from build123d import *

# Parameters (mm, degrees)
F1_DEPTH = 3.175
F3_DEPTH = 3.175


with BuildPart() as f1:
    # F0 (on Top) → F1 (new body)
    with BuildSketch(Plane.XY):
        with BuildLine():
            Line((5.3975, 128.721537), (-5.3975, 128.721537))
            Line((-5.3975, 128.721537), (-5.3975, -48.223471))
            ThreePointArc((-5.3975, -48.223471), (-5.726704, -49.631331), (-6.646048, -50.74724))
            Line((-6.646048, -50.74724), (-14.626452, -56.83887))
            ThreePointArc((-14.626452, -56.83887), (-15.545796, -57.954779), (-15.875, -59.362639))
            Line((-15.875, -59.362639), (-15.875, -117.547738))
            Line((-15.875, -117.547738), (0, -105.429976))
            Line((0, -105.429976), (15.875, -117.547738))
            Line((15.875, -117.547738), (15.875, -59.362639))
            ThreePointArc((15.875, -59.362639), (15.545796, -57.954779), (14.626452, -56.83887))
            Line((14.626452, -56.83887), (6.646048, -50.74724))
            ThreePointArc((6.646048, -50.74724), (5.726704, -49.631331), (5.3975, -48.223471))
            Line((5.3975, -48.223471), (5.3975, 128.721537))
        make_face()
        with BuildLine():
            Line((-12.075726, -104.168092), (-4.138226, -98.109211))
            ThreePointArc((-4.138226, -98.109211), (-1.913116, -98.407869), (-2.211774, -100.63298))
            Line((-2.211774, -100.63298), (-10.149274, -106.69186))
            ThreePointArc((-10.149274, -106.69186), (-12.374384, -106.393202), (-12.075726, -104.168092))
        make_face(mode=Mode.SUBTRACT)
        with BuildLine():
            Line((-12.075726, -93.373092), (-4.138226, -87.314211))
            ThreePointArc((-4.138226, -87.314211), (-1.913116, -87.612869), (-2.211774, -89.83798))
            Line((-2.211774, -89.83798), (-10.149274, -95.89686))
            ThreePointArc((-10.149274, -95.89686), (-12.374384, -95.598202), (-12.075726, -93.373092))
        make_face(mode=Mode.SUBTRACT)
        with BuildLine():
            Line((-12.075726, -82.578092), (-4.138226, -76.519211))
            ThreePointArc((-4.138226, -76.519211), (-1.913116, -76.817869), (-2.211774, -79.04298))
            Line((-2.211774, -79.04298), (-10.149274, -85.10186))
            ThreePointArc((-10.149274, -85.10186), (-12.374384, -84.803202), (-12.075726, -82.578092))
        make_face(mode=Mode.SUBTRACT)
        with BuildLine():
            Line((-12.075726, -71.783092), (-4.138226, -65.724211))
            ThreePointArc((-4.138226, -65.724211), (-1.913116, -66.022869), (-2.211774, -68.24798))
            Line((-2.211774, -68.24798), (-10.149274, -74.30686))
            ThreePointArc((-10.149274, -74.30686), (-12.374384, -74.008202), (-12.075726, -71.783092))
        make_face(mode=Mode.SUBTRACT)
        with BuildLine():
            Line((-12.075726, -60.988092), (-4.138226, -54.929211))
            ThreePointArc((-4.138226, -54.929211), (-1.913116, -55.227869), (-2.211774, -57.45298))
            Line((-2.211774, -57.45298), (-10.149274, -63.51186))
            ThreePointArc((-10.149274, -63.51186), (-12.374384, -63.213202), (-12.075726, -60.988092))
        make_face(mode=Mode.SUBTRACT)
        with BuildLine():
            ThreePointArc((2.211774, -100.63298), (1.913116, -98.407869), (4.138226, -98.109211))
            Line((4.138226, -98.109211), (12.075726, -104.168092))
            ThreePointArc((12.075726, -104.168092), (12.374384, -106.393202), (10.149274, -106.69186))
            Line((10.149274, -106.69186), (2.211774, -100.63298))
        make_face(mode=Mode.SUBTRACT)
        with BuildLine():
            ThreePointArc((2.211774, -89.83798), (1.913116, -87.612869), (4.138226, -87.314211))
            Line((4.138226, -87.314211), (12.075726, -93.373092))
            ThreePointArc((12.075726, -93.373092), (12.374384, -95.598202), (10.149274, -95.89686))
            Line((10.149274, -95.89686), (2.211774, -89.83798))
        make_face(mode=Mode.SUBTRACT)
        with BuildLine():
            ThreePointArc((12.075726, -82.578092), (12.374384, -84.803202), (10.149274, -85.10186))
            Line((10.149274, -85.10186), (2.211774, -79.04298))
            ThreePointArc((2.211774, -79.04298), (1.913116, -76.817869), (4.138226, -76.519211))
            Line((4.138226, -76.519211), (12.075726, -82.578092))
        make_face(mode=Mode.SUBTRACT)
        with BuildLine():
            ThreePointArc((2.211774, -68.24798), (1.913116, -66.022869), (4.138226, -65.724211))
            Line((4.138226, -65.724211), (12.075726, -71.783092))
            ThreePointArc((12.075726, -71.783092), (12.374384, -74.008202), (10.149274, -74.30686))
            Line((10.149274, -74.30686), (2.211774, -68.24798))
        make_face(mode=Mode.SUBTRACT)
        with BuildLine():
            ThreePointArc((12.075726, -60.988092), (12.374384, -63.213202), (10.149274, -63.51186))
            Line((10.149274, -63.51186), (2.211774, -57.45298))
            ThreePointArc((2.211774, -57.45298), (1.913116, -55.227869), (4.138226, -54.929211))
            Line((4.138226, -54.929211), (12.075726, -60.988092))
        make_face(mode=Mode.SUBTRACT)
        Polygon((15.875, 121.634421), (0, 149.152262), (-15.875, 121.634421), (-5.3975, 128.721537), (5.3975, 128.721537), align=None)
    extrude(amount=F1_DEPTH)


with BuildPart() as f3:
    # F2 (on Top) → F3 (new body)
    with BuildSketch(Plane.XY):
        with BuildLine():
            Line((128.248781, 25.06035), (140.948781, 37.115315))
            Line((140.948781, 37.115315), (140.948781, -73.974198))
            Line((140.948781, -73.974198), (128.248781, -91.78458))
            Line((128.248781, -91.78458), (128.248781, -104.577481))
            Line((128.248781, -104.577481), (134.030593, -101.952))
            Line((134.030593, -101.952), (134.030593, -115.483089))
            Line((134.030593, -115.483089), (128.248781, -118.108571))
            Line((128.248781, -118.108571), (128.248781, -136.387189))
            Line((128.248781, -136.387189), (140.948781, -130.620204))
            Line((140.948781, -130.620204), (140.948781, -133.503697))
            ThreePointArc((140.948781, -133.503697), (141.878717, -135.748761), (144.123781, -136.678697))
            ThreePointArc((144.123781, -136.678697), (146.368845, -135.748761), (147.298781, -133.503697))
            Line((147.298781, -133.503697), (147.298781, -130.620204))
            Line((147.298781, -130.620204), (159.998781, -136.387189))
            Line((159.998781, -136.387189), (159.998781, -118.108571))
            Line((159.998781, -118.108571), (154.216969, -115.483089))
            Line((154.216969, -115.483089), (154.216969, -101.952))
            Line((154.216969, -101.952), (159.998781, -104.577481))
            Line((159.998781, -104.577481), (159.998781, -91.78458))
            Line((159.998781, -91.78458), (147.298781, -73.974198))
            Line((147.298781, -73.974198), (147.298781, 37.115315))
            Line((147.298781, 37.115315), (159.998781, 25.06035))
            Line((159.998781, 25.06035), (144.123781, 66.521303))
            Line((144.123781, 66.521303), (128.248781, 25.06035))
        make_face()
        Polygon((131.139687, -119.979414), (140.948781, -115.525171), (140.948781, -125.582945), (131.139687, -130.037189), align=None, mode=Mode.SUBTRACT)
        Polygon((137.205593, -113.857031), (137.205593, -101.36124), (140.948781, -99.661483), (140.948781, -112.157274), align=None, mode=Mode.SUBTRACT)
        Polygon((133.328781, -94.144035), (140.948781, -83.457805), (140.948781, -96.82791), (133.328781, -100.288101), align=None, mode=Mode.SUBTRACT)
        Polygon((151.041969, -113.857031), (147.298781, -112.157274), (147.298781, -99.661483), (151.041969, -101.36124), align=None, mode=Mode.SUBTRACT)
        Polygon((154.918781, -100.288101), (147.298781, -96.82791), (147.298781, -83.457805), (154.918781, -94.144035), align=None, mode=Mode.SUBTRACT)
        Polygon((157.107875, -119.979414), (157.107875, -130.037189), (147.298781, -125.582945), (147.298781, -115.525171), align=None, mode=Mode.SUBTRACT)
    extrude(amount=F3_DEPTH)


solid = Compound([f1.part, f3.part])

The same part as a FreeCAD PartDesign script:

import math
import FreeCAD as App
import Part
import Sketcher
from FreeCAD import Vector
Q = App.Units.Quantity

doc = App.newDocument("Part")
body = doc.addObject("PartDesign::Body", "Body")

sketch1 = doc.addObject("Sketcher::SketchObject", "Sketch")
body.addObject(sketch1)
sketch1.AttachmentSupport = (doc.XY_Plane, [""])
sketch1.MapMode = "FlatFace"
sketch1.addGeometry(Part.LineSegment(Vector(14.6, -56.8, 0), Vector(6.6, -50.7, 0)), False)
sketch1.addGeometry(Part.ArcOfCircle(Part.Circle(Vector(8.6, -48.2, 0), Vector(0, 0, 1), 3.2), math.radians(-180), math.radians(-127)), False)
sketch1.addGeometry(Part.LineSegment(Vector(5.4, -48.2, 0), Vector(5.4, 128.7, 0)), False)
sketch1.addGeometry(Part.LineSegment(Vector(5.4, 128.7, 0), Vector(15.9, 121.6, 0)), False)
sketch1.addGeometry(Part.LineSegment(Vector(15.9, 121.6, 0), Vector(0, 149.2, 0)), False)
sketch1.addGeometry(Part.LineSegment(Vector(0, 149.2, 0), Vector(-15.9, 121.6, 0)), False)
sketch1.addGeometry(Part.LineSegment(Vector(-15.9, 121.6, 0), Vector(-5.4, 128.7, 0)), False)
sketch1.addGeometry(Part.LineSegment(Vector(-5.4, 128.7, 0), Vector(-5.4, -48.2, 0)), False)
sketch1.addGeometry(Part.ArcOfCircle(Part.Circle(Vector(-8.6, -48.2, 0), Vector(0, 0, 1), 3.2), math.radians(-53), math.radians(0)), False)
sketch1.addGeometry(Part.LineSegment(Vector(-6.6, -50.7, 0), Vector(-14.6, -56.8, 0)), False)
sketch1.addGeometry(Part.ArcOfCircle(Part.Circle(Vector(-12.7, -59.4, 0), Vector(0, 0, 1), 3.2), math.radians(127), math.radians(180)), False)
sketch1.addGeometry(Part.LineSegment(Vector(-15.9, -59.4, 0), Vector(-15.9, -117.5, 0)), False)
sketch1.addGeometry(Part.LineSegment(Vector(-15.9, -117.5, 0), Vector(0, -105.4, 0)), False)
sketch1.addGeometry(Part.LineSegment(Vector(0, -105.4, 0), Vector(15.9, -117.5, 0)), False)
sketch1.addGeometry(Part.LineSegment(Vector(15.9, -117.5, 0), Vector(15.9, -59.4, 0)), False)
sketch1.addGeometry(Part.ArcOfCircle(Part.Circle(Vector(12.7, -59.4, 0), Vector(0, 0, 1), 3.2), math.radians(0), math.radians(53)), False)
sketch1.addGeometry(Part.ArcOfCircle(Part.Circle(Vector(-11.1, -105.4, 0), Vector(0, 0, 1), 1.6), math.radians(127), math.radians(307)), False)
sketch1.addGeometry(Part.LineSegment(Vector(-12.1, -104.2, 0), Vector(-4.1, -98.1, 0)), False)
sketch1.addGeometry(Part.ArcOfCircle(Part.Circle(Vector(-3.2, -99.4, 0), Vector(0, 0, 1), 1.6), math.radians(-53), math.radians(127)), False)
sketch1.addGeometry(Part.LineSegment(Vector(-2.2, -100.6, 0), Vector(-10.1, -106.7, 0)), False)
sketch1.addGeometry(Part.ArcOfCircle(Part.Circle(Vector(-11.1, -94.6, 0), Vector(0, 0, 1), 1.6), math.radians(127), math.radians(307)), False)
sketch1.addGeometry(Part.LineSegment(Vector(-12.1, -93.4, 0), Vector(-4.1, -87.3, 0)), False)
sketch1.addGeometry(Part.ArcOfCircle(Part.Circle(Vector(-3.2, -88.6, 0), Vector(0, 0, 1), 1.6), math.radians(-53), math.radians(127)), False)
sketch1.addGeometry(Part.LineSegment(Vector(-2.2, -89.8, 0), Vector(-10.1, -95.9, 0)), False)
sketch1.addGeometry(Part.LineSegment(Vector(10.1, -106.7, 0), Vector(2.2, -100.6, 0)), False)
sketch1.addGeometry(Part.ArcOfCircle(Part.Circle(Vector(3.2, -99.4, 0), Vector(0, 0, 1), 1.6), math.radians(53), math.radians(233)), False)
sketch1.addGeometry(Part.LineSegment(Vector(4.1, -98.1, 0), Vector(12.1, -104.2, 0)), False)
sketch1.addGeometry(Part.ArcOfCircle(Part.Circle(Vector(11.1, -105.4, 0), Vector(0, 0, 1), 1.6), math.radians(-127), math.radians(53)), False)
sketch1.addGeometry(Part.LineSegment(Vector(10.1, -95.9, 0), Vector(2.2, -89.8, 0)), False)
sketch1.addGeometry(Part.ArcOfCircle(Part.Circle(Vector(3.2, -88.6, 0), Vector(0, 0, 1), 1.6), math.radians(53), math.radians(233)), False)
sketch1.addGeometry(Part.LineSegment(Vector(4.1, -87.3, 0), Vector(12.1, -93.4, 0)), False)
sketch1.addGeometry(Part.ArcOfCircle(Part.Circle(Vector(11.1, -94.6, 0), Vector(0, 0, 1), 1.6), math.radians(-127), math.radians(53)), False)
sketch1.addGeometry(Part.ArcOfCircle(Part.Circle(Vector(-11.1, -83.8, 0), Vector(0, 0, 1), 1.6), math.radians(127), math.radians(307)), False)
sketch1.addGeometry(Part.LineSegment(Vector(-12.1, -82.6, 0), Vector(-4.1, -76.5, 0)), False)
sketch1.addGeometry(Part.ArcOfCircle(Part.Circle(Vector(-3.2, -77.8, 0), Vector(0, 0, 1), 1.6), math.radians(-53), math.radians(127)), False)
sketch1.addGeometry(Part.LineSegment(Vector(-2.2, -79, 0), Vector(-10.1, -85.1, 0)), False)
sketch1.addGeometry(Part.ArcOfCircle(Part.Circle(Vector(-11.1, -73, 0), Vector(0, 0, 1), 1.6), math.radians(127), math.radians(307)), False)
sketch1.addGeometry(Part.LineSegment(Vector(-12.1, -71.8, 0), Vector(-4.1, -65.7, 0)), False)
sketch1.addGeometry(Part.ArcOfCircle(Part.Circle(Vector(-3.2, -67, 0), Vector(0, 0, 1), 1.6), math.radians(-53), math.radians(127)), False)
sketch1.addGeometry(Part.LineSegment(Vector(-2.2, -68.2, 0), Vector(-10.1, -74.3, 0)), False)
sketch1.addGeometry(Part.ArcOfCircle(Part.Circle(Vector(-11.1, -62.2, 0), Vector(0, 0, 1), 1.6), math.radians(127), math.radians(307)), False)
sketch1.addGeometry(Part.LineSegment(Vector(-12.1, -61, 0), Vector(-4.1, -54.9, 0)), False)
sketch1.addGeometry(Part.ArcOfCircle(Part.Circle(Vector(-3.2, -56.2, 0), Vector(0, 0, 1), 1.6), math.radians(-53), math.radians(127)), False)
sketch1.addGeometry(Part.LineSegment(Vector(-2.2, -57.5, 0), Vector(-10.1, -63.5, 0)), False)
sketch1.addGeometry(Part.LineSegment(Vector(4.1, -76.5, 0), Vector(12.1, -82.6, 0)), False)
sketch1.addGeometry(Part.ArcOfCircle(Part.Circle(Vector(11.1, -83.8, 0), Vector(0, 0, 1), 1.6), math.radians(-127), math.radians(53)), False)
sketch1.addGeometry(Part.LineSegment(Vector(10.1, -85.1, 0), Vector(2.2, -79, 0)), False)
sketch1.addGeometry(Part.ArcOfCircle(Part.Circle(Vector(3.2, -77.8, 0), Vector(0, 0, 1), 1.6), math.radians(53), math.radians(233)), False)
sketch1.addGeometry(Part.LineSegment(Vector(10.1, -74.3, 0), Vector(2.2, -68.2, 0)), False)
sketch1.addGeometry(Part.ArcOfCircle(Part.Circle(Vector(3.2, -67, 0), Vector(0, 0, 1), 1.6), math.radians(53), math.radians(233)), False)
sketch1.addGeometry(Part.LineSegment(Vector(4.1, -65.7, 0), Vector(12.1, -71.8, 0)), False)
sketch1.addGeometry(Part.ArcOfCircle(Part.Circle(Vector(11.1, -73, 0), Vector(0, 0, 1), 1.6), math.radians(-127), math.radians(53)), False)
sketch1.addGeometry(Part.LineSegment(Vector(4.1, -54.9, 0), Vector(12.1, -61, 0)), False)
sketch1.addGeometry(Part.ArcOfCircle(Part.Circle(Vector(11.1, -62.2, 0), Vector(0, 0, 1), 1.6), math.radians(-127), math.radians(53)), False)
sketch1.addGeometry(Part.LineSegment(Vector(10.1, -63.5, 0), Vector(2.2, -57.5, 0)), False)
sketch1.addGeometry(Part.ArcOfCircle(Part.Circle(Vector(3.2, -56.2, 0), Vector(0, 0, 1), 1.6), math.radians(53), math.radians(233)), False)
sketch1.addConstraint(Sketcher.Constraint("Tangent", 0, 2, 1, 2))
sketch1.addConstraint(Sketcher.Constraint("Tangent", 1, 1, 2, 1))
sketch1.addConstraint(Sketcher.Constraint("Coincident", 2, 2, 3, 1))
sketch1.addConstraint(Sketcher.Constraint("Coincident", 3, 2, 4, 1))
sketch1.addConstraint(Sketcher.Constraint("Coincident", 4, 2, 5, 1))
sketch1.addConstraint(Sketcher.Constraint("Coincident", 5, 2, 6, 1))
sketch1.addConstraint(Sketcher.Constraint("Coincident", 6, 2, 7, 1))
sketch1.addConstraint(Sketcher.Constraint("Tangent", 7, 2, 8, 2))
sketch1.addConstraint(Sketcher.Constraint("Tangent", 8, 1, 9, 1))
sketch1.addConstraint(Sketcher.Constraint("Tangent", 9, 2, 10, 1))
sketch1.addConstraint(Sketcher.Constraint("Tangent", 10, 2, 11, 1))
sketch1.addConstraint(Sketcher.Constraint("Coincident", 11, 2, 12, 1))
sketch1.addConstraint(Sketcher.Constraint("Coincident", 12, 2, 13, 1))
sketch1.addConstraint(Sketcher.Constraint("Coincident", 13, 2, 14, 1))
sketch1.addConstraint(Sketcher.Constraint("Tangent", 14, 2, 15, 1))
sketch1.addConstraint(Sketcher.Constraint("Tangent", 15, 2, 0, 1))
sketch1.addConstraint(Sketcher.Constraint("Tangent", 16, 1, 17, 1))
sketch1.addConstraint(Sketcher.Constraint("Tangent", 17, 2, 18, 2))
sketch1.addConstraint(Sketcher.Constraint("Tangent", 18, 1, 19, 1))
sketch1.addConstraint(Sketcher.Constraint("Tangent", 19, 2, 16, 2))
sketch1.addConstraint(Sketcher.Constraint("Tangent", 20, 1, 21, 1))
sketch1.addConstraint(Sketcher.Constraint("Tangent", 21, 2, 22, 2))
sketch1.addConstraint(Sketcher.Constraint("Tangent", 22, 1, 23, 1))
sketch1.addConstraint(Sketcher.Constraint("Tangent", 23, 2, 20, 2))
sketch1.addConstraint(Sketcher.Constraint("Tangent", 24, 2, 25, 2))
sketch1.addConstraint(Sketcher.Constraint("Tangent", 25, 1, 26, 1))
sketch1.addConstraint(Sketcher.Constraint("Tangent", 26, 2, 27, 2))
sketch1.addConstraint(Sketcher.Constraint("Tangent", 27, 1, 24, 1))
sketch1.addConstraint(Sketcher.Constraint("Tangent", 28, 2, 29, 2))
sketch1.addConstraint(Sketcher.Constraint("Tangent", 29, 1, 30, 1))
sketch1.addConstraint(Sketcher.Constraint("Tangent", 30, 2, 31, 2))
sketch1.addConstraint(Sketcher.Constraint("Tangent", 31, 1, 28, 1))
sketch1.addConstraint(Sketcher.Constraint("Tangent", 32, 1, 33, 1))
sketch1.addConstraint(Sketcher.Constraint("Tangent", 33, 2, 34, 2))
sketch1.addConstraint(Sketcher.Constraint("Tangent", 34, 1, 35, 1))
sketch1.addConstraint(Sketcher.Constraint("Tangent", 35, 2, 32, 2))
sketch1.addConstraint(Sketcher.Constraint("Tangent", 36, 1, 37, 1))
sketch1.addConstraint(Sketcher.Constraint("Tangent", 37, 2, 38, 2))
sketch1.addConstraint(Sketcher.Constraint("Tangent", 38, 1, 39, 1))
sketch1.addConstraint(Sketcher.Constraint("Tangent", 39, 2, 36, 2))
sketch1.addConstraint(Sketcher.Constraint("Tangent", 40, 1, 41, 1))
sketch1.addConstraint(Sketcher.Constraint("Tangent", 41, 2, 42, 2))
sketch1.addConstraint(Sketcher.Constraint("Tangent", 42, 1, 43, 1))
sketch1.addConstraint(Sketcher.Constraint("Tangent", 43, 2, 40, 2))
sketch1.addConstraint(Sketcher.Constraint("Tangent", 44, 2, 45, 2))
sketch1.addConstraint(Sketcher.Constraint("Tangent", 45, 1, 46, 1))
sketch1.addConstraint(Sketcher.Constraint("Tangent", 46, 2, 47, 2))
sketch1.addConstraint(Sketcher.Constraint("Tangent", 47, 1, 44, 1))
sketch1.addConstraint(Sketcher.Constraint("Tangent", 48, 2, 49, 2))
sketch1.addConstraint(Sketcher.Constraint("Tangent", 49, 1, 50, 1))
sketch1.addConstraint(Sketcher.Constraint("Tangent", 50, 2, 51, 2))
sketch1.addConstraint(Sketcher.Constraint("Tangent", 51, 1, 48, 1))
sketch1.addConstraint(Sketcher.Constraint("Tangent", 52, 2, 53, 2))
sketch1.addConstraint(Sketcher.Constraint("Tangent", 53, 1, 54, 1))
sketch1.addConstraint(Sketcher.Constraint("Tangent", 54, 2, 55, 2))
sketch1.addConstraint(Sketcher.Constraint("Tangent", 55, 1, 52, 1))
sketch1.addConstraint(Sketcher.Constraint("Vertical", 2))
sketch1.addConstraint(Sketcher.Constraint("Vertical", 7))
sketch1.addConstraint(Sketcher.Constraint("Vertical", 11))
sketch1.addConstraint(Sketcher.Constraint("Vertical", 14))
sketch1.addConstraint(Sketcher.Constraint("Equal", 1, 8))
sketch1.addConstraint(Sketcher.Constraint("Equal", 8, 10))
sketch1.addConstraint(Sketcher.Constraint("Equal", 10, 15))
sketch1.addConstraint(Sketcher.Constraint("Equal", 16, 18))
sketch1.addConstraint(Sketcher.Constraint("Equal", 18, 20))
sketch1.addConstraint(Sketcher.Constraint("Equal", 20, 22))
sketch1.addConstraint(Sketcher.Constraint("Equal", 22, 25))
sketch1.addConstraint(Sketcher.Constraint("Equal", 25, 27))
sketch1.addConstraint(Sketcher.Constraint("Equal", 27, 29))
sketch1.addConstraint(Sketcher.Constraint("Equal", 29, 31))
sketch1.addConstraint(Sketcher.Constraint("Equal", 31, 32))
sketch1.addConstraint(Sketcher.Constraint("Equal", 32, 34))
sketch1.addConstraint(Sketcher.Constraint("Equal", 34, 36))
sketch1.addConstraint(Sketcher.Constraint("Equal", 36, 38))
sketch1.addConstraint(Sketcher.Constraint("Equal", 38, 40))
sketch1.addConstraint(Sketcher.Constraint("Equal", 40, 42))
sketch1.addConstraint(Sketcher.Constraint("Equal", 42, 45))
sketch1.addConstraint(Sketcher.Constraint("Equal", 45, 47))
sketch1.addConstraint(Sketcher.Constraint("Equal", 47, 49))
sketch1.addConstraint(Sketcher.Constraint("Equal", 49, 51))
sketch1.addConstraint(Sketcher.Constraint("Equal", 51, 53))
sketch1.addConstraint(Sketcher.Constraint("Equal", 53, 55))
sketch1.addConstraint(Sketcher.Constraint("Symmetric", 1, 3, 8, 3, -2))
sketch1.addConstraint(Sketcher.Constraint("Symmetric", 10, 3, 15, 3, -2))
sketch1.addConstraint(Sketcher.Constraint("Symmetric", 18, 3, 25, 3, -2))
sketch1.addConstraint(Sketcher.Constraint("Symmetric", 16, 3, 27, 3, -2))
sketch1.addConstraint(Sketcher.Constraint("Symmetric", 22, 3, 29, 3, -2))
sketch1.addConstraint(Sketcher.Constraint("Symmetric", 20, 3, 31, 3, -2))
sketch1.addConstraint(Sketcher.Constraint("Symmetric", 32, 3, 45, 3, -2))
sketch1.addConstraint(Sketcher.Constraint("Symmetric", 34, 3, 47, 3, -2))
sketch1.addConstraint(Sketcher.Constraint("Symmetric", 38, 3, 49, 3, -2))
sketch1.addConstraint(Sketcher.Constraint("Symmetric", 36, 3, 51, 3, -2))
sketch1.addConstraint(Sketcher.Constraint("Symmetric", 40, 3, 53, 3, -2))
sketch1.addConstraint(Sketcher.Constraint("Symmetric", 42, 3, 55, 3, -2))
sketch1.addConstraint(Sketcher.Constraint("Symmetric", 3, 2, 5, 2, -2))
sketch1.addConstraint(Sketcher.Constraint("PointOnObject", 4, 2, -2))
sketch1.addConstraint(Sketcher.Constraint("PointOnObject", 12, 2, -2))
sketch1.addConstraint(Sketcher.Constraint("Parallel", 9, 12))
sketch1.addConstraint(Sketcher.Constraint("Parallel", 0, 13))
sketch1.addConstraint(Sketcher.Constraint("Parallel", 12, 17))
sketch1.addConstraint(Sketcher.Constraint("Parallel", 19, 21))
sketch1.addConstraint(Sketcher.Constraint("Parallel", 23, 33))
sketch1.addConstraint(Sketcher.Constraint("Parallel", 35, 37))
sketch1.addConstraint(Sketcher.Constraint("Parallel", 39, 41))
sketch1.addConstraint(Sketcher.Constraint("Horizontal", 2, 2, 6, 2))
sketch1.addConstraint(Sketcher.Constraint("Horizontal", 27, 3, 12, 2))
sketch1.addConstraint(Sketcher.Constraint("Vertical", 16, 3, 20, 3))
sketch1.addConstraint(Sketcher.Constraint("Vertical", 18, 3, 22, 3))
sketch1.addConstraint(Sketcher.Constraint("Vertical", 20, 3, 32, 3))
sketch1.addConstraint(Sketcher.Constraint("Vertical", 22, 3, 34, 3))
sketch1.addConstraint(Sketcher.Constraint("Vertical", 32, 3, 36, 3))
sketch1.addConstraint(Sketcher.Constraint("Vertical", 34, 3, 38, 3))
sketch1.addConstraint(Sketcher.Constraint("Vertical", 36, 3, 40, 3))
sketch1.addConstraint(Sketcher.Constraint("Vertical", 38, 3, 42, 3))
sketch1.addConstraint(Sketcher.Constraint("Vertical", 5, 2, 10, 2))
sketch1.addConstraint(Sketcher.Constraint("Radius", 1, Q("0.1250001 in")))
sketch1.addConstraint(Sketcher.Constraint("Radius", 16, Q("0.0625 in")))
sketch1.addConstraint(Sketcher.Constraint("DistanceX", 10, 3, -1, 1, Q("0.4999999 in")))
sketch1.addConstraint(Sketcher.Constraint("DistanceX", 16, 3, -1, 1, Q("0.4375 in")))
sketch1.addConstraint(Sketcher.Constraint("DistanceX", 18, 3, -1, 1, Q("0.125 in")))
sketch1.addConstraint(Sketcher.Constraint("DistanceY", 11, 2, 11, 1, Q("58.185099 mm")))
sketch1.addConstraint(Sketcher.Constraint("DistanceX", -1, 1, 1, 3, Q("0.3375001 in")))
sketch1.addConstraint(Sketcher.Constraint("DistanceY", 2, 1, 2, 2, Q("176.945008 mm")))
sketch1.addConstraint(Sketcher.Constraint("Distance", 0, Q("10.039662 mm")))
sketch1.addConstraint(Sketcher.Constraint("Distance", 4, Q("31.768651 mm")))
sketch1.addConstraint(Sketcher.Constraint("DistanceY", 1, 3, -1, 1, Q("48.22347 mm")))
sketch1.addConstraint(Sketcher.Constraint("DistanceY", -1, 1, 3, 2, Q("121.634421 mm")))
sketch1.addConstraint(Sketcher.Constraint("DistanceY", 20, 1, -1, 1, Q("93.373092 mm")))
sketch1.addConstraint(Sketcher.Constraint("DistanceY", 32, 1, -1, 1, Q("82.578092 mm")))
sketch1.addConstraint(Sketcher.Constraint("DistanceY", 36, 1, -1, 1, Q("71.783092 mm")))
sketch1.addConstraint(Sketcher.Constraint("DistanceY", 40, 1, -1, 1, Q("60.988092 mm")))
pad1 = doc.addObject("PartDesign::Pad", "Pad")
body.addObject(pad1)
pad1.Profile = sketch1
pad1.Length = Q("0.125 in")
body2 = doc.addObject("PartDesign::Body", "Body001")

sketch2 = doc.addObject("Sketcher::SketchObject", "Sketch001")
body2.addObject(sketch2)
sketch2.AttachmentSupport = (doc.getObject("XY_Plane001"), [""])
sketch2.MapMode = "FlatFace"
sketch2.addGeometry(Part.LineSegment(Vector(128.2, 25.1, 0), Vector(140.9, 37.1, 0)), False)
sketch2.addGeometry(Part.LineSegment(Vector(140.9, 37.1, 0), Vector(140.9, -74, 0)), False)
sketch2.addGeometry(Part.LineSegment(Vector(140.9, -74, 0), Vector(128.2, -91.8, 0)), False)
sketch2.addGeometry(Part.LineSegment(Vector(128.2, -91.8, 0), Vector(128.2, -104.6, 0)), False)
sketch2.addGeometry(Part.LineSegment(Vector(128.2, -104.6, 0), Vector(134, -102, 0)), False)
sketch2.addGeometry(Part.LineSegment(Vector(134, -102, 0), Vector(134, -115.5, 0)), False)
sketch2.addGeometry(Part.LineSegment(Vector(134, -115.5, 0), Vector(128.2, -118.1, 0)), False)
sketch2.addGeometry(Part.LineSegment(Vector(128.2, -118.1, 0), Vector(128.2, -136.4, 0)), False)
sketch2.addGeometry(Part.LineSegment(Vector(128.2, -136.4, 0), Vector(140.9, -130.6, 0)), False)
sketch2.addGeometry(Part.LineSegment(Vector(140.9, -130.6, 0), Vector(140.9, -133.5, 0)), False)
sketch2.addGeometry(Part.ArcOfCircle(Part.Circle(Vector(144.1, -133.5, 0), Vector(0, 0, 1), 3.2), math.radians(-180), math.radians(-90)), False)
sketch2.addGeometry(Part.ArcOfCircle(Part.Circle(Vector(144.1, -133.5, 0), Vector(0, 0, 1), 3.2), math.radians(-90), math.radians(0)), False)
sketch2.addGeometry(Part.LineSegment(Vector(147.3, -133.5, 0), Vector(147.3, -130.6, 0)), False)
sketch2.addGeometry(Part.LineSegment(Vector(147.3, -130.6, 0), Vector(160, -136.4, 0)), False)
sketch2.addGeometry(Part.LineSegment(Vector(160, -136.4, 0), Vector(160, -118.1, 0)), False)
sketch2.addGeometry(Part.LineSegment(Vector(160, -118.1, 0), Vector(154.2, -115.5, 0)), False)
sketch2.addGeometry(Part.LineSegment(Vector(154.2, -115.5, 0), Vector(154.2, -102, 0)), False)
sketch2.addGeometry(Part.LineSegment(Vector(154.2, -102, 0), Vector(160, -104.6, 0)), False)
sketch2.addGeometry(Part.LineSegment(Vector(160, -104.6, 0), Vector(160, -91.8, 0)), False)
sketch2.addGeometry(Part.LineSegment(Vector(160, -91.8, 0), Vector(147.3, -74, 0)), False)
sketch2.addGeometry(Part.LineSegment(Vector(147.3, -74, 0), Vector(147.3, 37.1, 0)), False)
sketch2.addGeometry(Part.LineSegment(Vector(147.3, 37.1, 0), Vector(160, 25.1, 0)), False)
sketch2.addGeometry(Part.LineSegment(Vector(160, 25.1, 0), Vector(144.1, 66.5, 0)), False)
sketch2.addGeometry(Part.LineSegment(Vector(144.1, 66.5, 0), Vector(128.2, 25.1, 0)), False)
sketch2.addGeometry(Part.LineSegment(Vector(131.1, -130, 0), Vector(131.1, -120, 0)), False)
sketch2.addGeometry(Part.LineSegment(Vector(131.1, -120, 0), Vector(140.9, -115.5, 0)), False)
sketch2.addGeometry(Part.LineSegment(Vector(140.9, -115.5, 0), Vector(140.9, -125.6, 0)), False)
sketch2.addGeometry(Part.LineSegment(Vector(140.9, -125.6, 0), Vector(131.1, -130, 0)), False)
sketch2.addGeometry(Part.LineSegment(Vector(140.9, -112.2, 0), Vector(137.2, -113.9, 0)), False)
sketch2.addGeometry(Part.LineSegment(Vector(137.2, -113.9, 0), Vector(137.2, -101.4, 0)), False)
sketch2.addGeometry(Part.LineSegment(Vector(137.2, -101.4, 0), Vector(140.9, -99.7, 0)), False)
sketch2.addGeometry(Part.LineSegment(Vector(140.9, -99.7, 0), Vector(140.9, -112.2, 0)), False)
sketch2.addGeometry(Part.LineSegment(Vector(147.3, -115.5, 0), Vector(157.1, -120, 0)), False)
sketch2.addGeometry(Part.LineSegment(Vector(157.1, -120, 0), Vector(157.1, -130, 0)), False)
sketch2.addGeometry(Part.LineSegment(Vector(157.1, -130, 0), Vector(147.3, -125.6, 0)), False)
sketch2.addGeometry(Part.LineSegment(Vector(147.3, -125.6, 0), Vector(147.3, -115.5, 0)), False)
sketch2.addGeometry(Part.LineSegment(Vector(151, -101.4, 0), Vector(151, -113.9, 0)), False)
sketch2.addGeometry(Part.LineSegment(Vector(151, -113.9, 0), Vector(147.3, -112.2, 0)), False)
sketch2.addGeometry(Part.LineSegment(Vector(147.3, -112.2, 0), Vector(147.3, -99.7, 0)), False)
sketch2.addGeometry(Part.LineSegment(Vector(147.3, -99.7, 0), Vector(151, -101.4, 0)), False)
sketch2.addGeometry(Part.LineSegment(Vector(133.3, -100.3, 0), Vector(133.3, -94.1, 0)), False)
sketch2.addGeometry(Part.LineSegment(Vector(133.3, -94.1, 0), Vector(140.9, -83.5, 0)), False)
sketch2.addGeometry(Part.LineSegment(Vector(140.9, -83.5, 0), Vector(140.9, -96.8, 0)), False)
sketch2.addGeometry(Part.LineSegment(Vector(140.9, -96.8, 0), Vector(133.3, -100.3, 0)), False)
sketch2.addGeometry(Part.LineSegment(Vector(154.9, -94.1, 0), Vector(154.9, -100.3, 0)), False)
sketch2.addGeometry(Part.LineSegment(Vector(154.9, -100.3, 0), Vector(147.3, -96.8, 0)), False)
sketch2.addGeometry(Part.LineSegment(Vector(147.3, -96.8, 0), Vector(147.3, -83.5, 0)), False)
sketch2.addGeometry(Part.LineSegment(Vector(147.3, -83.5, 0), Vector(154.9, -94.1, 0)), False)
sketch2.addConstraint(Sketcher.Constraint("Coincident", 0, 2, 1, 1))
sketch2.addConstraint(Sketcher.Constraint("Coincident", 1, 2, 2, 1))
sketch2.addConstraint(Sketcher.Constraint("Coincident", 2, 2, 3, 1))
sketch2.addConstraint(Sketcher.Constraint("Coincident", 3, 2, 4, 1))
sketch2.addConstraint(Sketcher.Constraint("Coincident", 4, 2, 5, 1))
sketch2.addConstraint(Sketcher.Constraint("Coincident", 5, 2, 6, 1))
sketch2.addConstraint(Sketcher.Constraint("Coincident", 6, 2, 7, 1))
sketch2.addConstraint(Sketcher.Constraint("Coincident", 7, 2, 8, 1))
sketch2.addConstraint(Sketcher.Constraint("Coincident", 8, 2, 9, 1))
sketch2.addConstraint(Sketcher.Constraint("Tangent", 9, 2, 10, 1))
sketch2.addConstraint(Sketcher.Constraint("Tangent", 10, 2, 11, 1))
sketch2.addConstraint(Sketcher.Constraint("Tangent", 11, 2, 12, 1))
sketch2.addConstraint(Sketcher.Constraint("Coincident", 12, 2, 13, 1))
sketch2.addConstraint(Sketcher.Constraint("Coincident", 13, 2, 14, 1))
sketch2.addConstraint(Sketcher.Constraint("Coincident", 14, 2, 15, 1))
sketch2.addConstraint(Sketcher.Constraint("Coincident", 15, 2, 16, 1))
sketch2.addConstraint(Sketcher.Constraint("Coincident", 16, 2, 17, 1))
sketch2.addConstraint(Sketcher.Constraint("Coincident", 17, 2, 18, 1))
sketch2.addConstraint(Sketcher.Constraint("Coincident", 18, 2, 19, 1))
sketch2.addConstraint(Sketcher.Constraint("Coincident", 19, 2, 20, 1))
sketch2.addConstraint(Sketcher.Constraint("Coincident", 20, 2, 21, 1))
sketch2.addConstraint(Sketcher.Constraint("Coincident", 21, 2, 22, 1))
sketch2.addConstraint(Sketcher.Constraint("Coincident", 22, 2, 23, 1))
sketch2.addConstraint(Sketcher.Constraint("Coincident", 23, 2, 0, 1))
sketch2.addConstraint(Sketcher.Constraint("Coincident", 24, 2, 25, 1))
sketch2.addConstraint(Sketcher.Constraint("Coincident", 25, 2, 26, 1))
sketch2.addConstraint(Sketcher.Constraint("Coincident", 26, 2, 27, 1))
sketch2.addConstraint(Sketcher.Constraint("Coincident", 27, 2, 24, 1))
sketch2.addConstraint(Sketcher.Constraint("Coincident", 28, 2, 29, 1))
sketch2.addConstraint(Sketcher.Constraint("Coincident", 29, 2, 30, 1))
sketch2.addConstraint(Sketcher.Constraint("Coincident", 30, 2, 31, 1))
sketch2.addConstraint(Sketcher.Constraint("Coincident", 31, 2, 28, 1))
sketch2.addConstraint(Sketcher.Constraint("Coincident", 32, 2, 33, 1))
sketch2.addConstraint(Sketcher.Constraint("Coincident", 33, 2, 34, 1))
sketch2.addConstraint(Sketcher.Constraint("Coincident", 34, 2, 35, 1))
sketch2.addConstraint(Sketcher.Constraint("Coincident", 35, 2, 32, 1))
sketch2.addConstraint(Sketcher.Constraint("Coincident", 36, 2, 37, 1))
sketch2.addConstraint(Sketcher.Constraint("Coincident", 37, 2, 38, 1))
sketch2.addConstraint(Sketcher.Constraint("Coincident", 38, 2, 39, 1))
sketch2.addConstraint(Sketcher.Constraint("Coincident", 39, 2, 36, 1))
sketch2.addConstraint(Sketcher.Constraint("Coincident", 40, 2, 41, 1))
sketch2.addConstraint(Sketcher.Constraint("Coincident", 41, 2, 42, 1))
sketch2.addConstraint(Sketcher.Constraint("Coincident", 42, 2, 43, 1))
sketch2.addConstraint(Sketcher.Constraint("Coincident", 43, 2, 40, 1))
sketch2.addConstraint(Sketcher.Constraint("Coincident", 44, 2, 45, 1))
sketch2.addConstraint(Sketcher.Constraint("Coincident", 45, 2, 46, 1))
sketch2.addConstraint(Sketcher.Constraint("Coincident", 46, 2, 47, 1))
sketch2.addConstraint(Sketcher.Constraint("Coincident", 47, 2, 44, 1))
sketch2.addConstraint(Sketcher.Constraint("Vertical", 1))
sketch2.addConstraint(Sketcher.Constraint("Vertical", 3))
sketch2.addConstraint(Sketcher.Constraint("Vertical", 5))
sketch2.addConstraint(Sketcher.Constraint("Vertical", 7))
sketch2.addConstraint(Sketcher.Constraint("Vertical", 9))
sketch2.addConstraint(Sketcher.Constraint("Vertical", 12))
sketch2.addConstraint(Sketcher.Constraint("Vertical", 14))
sketch2.addConstraint(Sketcher.Constraint("Vertical", 16))
sketch2.addConstraint(Sketcher.Constraint("Vertical", 18))
sketch2.addConstraint(Sketcher.Constraint("Vertical", 20))
sketch2.addConstraint(Sketcher.Constraint("Vertical", 24))
sketch2.addConstraint(Sketcher.Constraint("Vertical", 26))
sketch2.addConstraint(Sketcher.Constraint("Vertical", 29))
sketch2.addConstraint(Sketcher.Constraint("Vertical", 31))
sketch2.addConstraint(Sketcher.Constraint("Vertical", 33))
sketch2.addConstraint(Sketcher.Constraint("Vertical", 35))
sketch2.addConstraint(Sketcher.Constraint("Vertical", 36))
sketch2.addConstraint(Sketcher.Constraint("Vertical", 38))
sketch2.addConstraint(Sketcher.Constraint("Vertical", 40))
sketch2.addConstraint(Sketcher.Constraint("Vertical", 42))
sketch2.addConstraint(Sketcher.Constraint("Vertical", 44))
sketch2.addConstraint(Sketcher.Constraint("Vertical", 46))
sketch2.addConstraint(Sketcher.Constraint("Equal", 10, 11))
sketch2.addConstraint(Sketcher.Constraint("Parallel", 4, 6))
sketch2.addConstraint(Sketcher.Constraint("Parallel", 6, 8))
sketch2.addConstraint(Sketcher.Constraint("Parallel", 13, 15))
sketch2.addConstraint(Sketcher.Constraint("Parallel", 15, 17))
sketch2.addConstraint(Sketcher.Constraint("Parallel", 8, 25))
sketch2.addConstraint(Sketcher.Constraint("Parallel", 25, 27))
sketch2.addConstraint(Sketcher.Constraint("Parallel", 27, 28))
sketch2.addConstraint(Sketcher.Constraint("Parallel", 28, 30))
sketch2.addConstraint(Sketcher.Constraint("Parallel", 17, 32))
sketch2.addConstraint(Sketcher.Constraint("Parallel", 32, 34))
sketch2.addConstraint(Sketcher.Constraint("Parallel", 34, 37))
sketch2.addConstraint(Sketcher.Constraint("Parallel", 37, 39))
sketch2.addConstraint(Sketcher.Constraint("Parallel", 2, 41))
sketch2.addConstraint(Sketcher.Constraint("Parallel", 30, 43))
sketch2.addConstraint(Sketcher.Constraint("Parallel", 39, 45))
sketch2.addConstraint(Sketcher.Constraint("Parallel", 19, 47))
sketch2.addConstraint(Sketcher.Constraint("Horizontal", 8, 2, 12, 2))
sketch2.addConstraint(Sketcher.Constraint("Horizontal", 7, 2, 13, 2))
sketch2.addConstraint(Sketcher.Constraint("Horizontal", 6, 2, 14, 2))
sketch2.addConstraint(Sketcher.Constraint("Horizontal", 5, 2, 15, 2))
sketch2.addConstraint(Sketcher.Constraint("Horizontal", 4, 2, 16, 2))
sketch2.addConstraint(Sketcher.Constraint("Horizontal", 3, 2, 17, 2))
sketch2.addConstraint(Sketcher.Constraint("Horizontal", 2, 2, 18, 2))
sketch2.addConstraint(Sketcher.Constraint("Horizontal", 1, 2, 19, 2))
sketch2.addConstraint(Sketcher.Constraint("Horizontal", 0, 2, 20, 2))
sketch2.addConstraint(Sketcher.Constraint("Horizontal", 21, 2, 23, 2))
sketch2.addConstraint(Sketcher.Constraint("Horizontal", 24, 2, 32, 2))
sketch2.addConstraint(Sketcher.Constraint("Horizontal", 27, 2, 33, 2))
sketch2.addConstraint(Sketcher.Constraint("Horizontal", 26, 2, 34, 2))
sketch2.addConstraint(Sketcher.Constraint("Horizontal", 28, 2, 36, 2))
sketch2.addConstraint(Sketcher.Constraint("Horizontal", 31, 2, 37, 2))
sketch2.addConstraint(Sketcher.Constraint("Horizontal", 30, 2, 38, 2))
sketch2.addConstraint(Sketcher.Constraint("Horizontal", 43, 2, 44, 2))
sketch2.addConstraint(Sketcher.Constraint("Horizontal", 42, 2, 45, 2))
sketch2.addConstraint(Sketcher.Constraint("Horizontal", 41, 2, 46, 2))
sketch2.addConstraint(Sketcher.Constraint("Horizontal", 40, 2, 47, 2))
sketch2.addConstraint(Sketcher.Constraint("Vertical", 3, 2, 6, 2))
sketch2.addConstraint(Sketcher.Constraint("Vertical", 1, 2, 8, 2))
sketch2.addConstraint(Sketcher.Constraint("Vertical", 11, 3, 10, 2))
sketch2.addConstraint(Sketcher.Constraint("Vertical", 18, 2, 21, 2))
sketch2.addConstraint(Sketcher.Constraint("Vertical", 10, 2, 22, 2))
sketch2.addConstraint(Sketcher.Constraint("Vertical", 7, 2, 23, 2))
sketch2.addConstraint(Sketcher.Constraint("Vertical", 9, 2, 25, 2))
sketch2.addConstraint(Sketcher.Constraint("Vertical", 26, 2, 30, 2))
sketch2.addConstraint(Sketcher.Constraint("Vertical", 20, 2, 34, 2))
sketch2.addConstraint(Sketcher.Constraint("Vertical", 35, 2, 37, 2))
sketch2.addConstraint(Sketcher.Constraint("Vertical", 31, 2, 41, 2))
sketch2.addConstraint(Sketcher.Constraint("Vertical", 38, 2, 45, 2))
sketch2.addConstraint(Sketcher.Constraint("Equal", 8, 13))
sketch2.addConstraint(Sketcher.Constraint("Radius", 10, Q("0.125 in")))
sketch2.addConstraint(Sketcher.Constraint("DistanceX", 2, 2, 1, 2, Q("0.5 in")))
sketch2.addConstraint(Sketcher.Constraint("DistanceX", 2, 2, 40, 2, Q("0.2 in")))
sketch2.addConstraint(Sketcher.Constraint("Distance", 4, Q("0.25 in")))
sketch2.addConstraint(Sketcher.Constraint("DistanceY", 7, 2, 27, 2, Q("0.25 in")))
sketch2.addConstraint(Sketcher.Constraint("DistanceX", 5, 2, 28, 2, Q("0.125 in")))
sketch2.addConstraint(Sketcher.Constraint("DistanceY", 3, 2, 3, 1, Q("12.792901 mm")))
sketch2.addConstraint(Sketcher.Constraint("DistanceY", 29, 2, -1, 1, Q("3.9906 in")))
sketch2.addConstraint(Sketcher.Constraint("DistanceY", 4, 2, 40, 2, Q("0.3074002 in")))
sketch2.addConstraint(Sketcher.Constraint("DistanceY", 5, 2, 5, 1, Q("13.531089 mm")))
sketch2.addConstraint(Sketcher.Constraint("DistanceY", 7, 2, 7, 1, Q("18.278618 mm")))
sketch2.addConstraint(Sketcher.Constraint("DistanceY", 29, 1, 29, 2, Q("12.495791 mm")))
sketch2.addConstraint(Sketcher.Constraint("DistanceY", 1, 2, -1, 1, Q("73.974198 mm")))
sketch2.addConstraint(Sketcher.Constraint("DistanceY", 4, 2, -1, 1, Q("101.952 mm")))
sketch2.addConstraint(Sketcher.Constraint("DistanceY", 43, 2, -1, 1, Q("100.288101 mm")))
sketch2.addConstraint(Sketcher.Constraint("DistanceY", 11, 3, 1, 2, Q("59.529499 mm")))
sketch2.addConstraint(Sketcher.Constraint("DistanceY", 7, 2, 5, 2, Q("20.9041 mm")))
sketch2.addConstraint(Sketcher.Constraint("DistanceY", 1, 2, 22, 2, Q("140.495501 mm")))
sketch2.addConstraint(Sketcher.Constraint("DistanceY", 6, 2, 25, 2, Q("2.5834 mm")))
sketch2.addConstraint(Sketcher.Constraint("Distance", 22, Q("44.396241 mm")))
sketch2.addConstraint(Sketcher.Constraint("Distance", 25, Q("10.77305 mm")))
sketch2.addConstraint(Sketcher.Constraint("DistanceY", 1, 2, 1, 1, Q("111.089513 mm")))
sketch2.addConstraint(Sketcher.Constraint("DistanceX", -1, 1, 10, 3, Q("144.123781 mm")))
pad2 = doc.addObject("PartDesign::Pad", "Pad001")
body2.addObject(pad2)
pad2.Profile = sketch2
pad2.Length = Q("0.125 in")

doc.recompute()
